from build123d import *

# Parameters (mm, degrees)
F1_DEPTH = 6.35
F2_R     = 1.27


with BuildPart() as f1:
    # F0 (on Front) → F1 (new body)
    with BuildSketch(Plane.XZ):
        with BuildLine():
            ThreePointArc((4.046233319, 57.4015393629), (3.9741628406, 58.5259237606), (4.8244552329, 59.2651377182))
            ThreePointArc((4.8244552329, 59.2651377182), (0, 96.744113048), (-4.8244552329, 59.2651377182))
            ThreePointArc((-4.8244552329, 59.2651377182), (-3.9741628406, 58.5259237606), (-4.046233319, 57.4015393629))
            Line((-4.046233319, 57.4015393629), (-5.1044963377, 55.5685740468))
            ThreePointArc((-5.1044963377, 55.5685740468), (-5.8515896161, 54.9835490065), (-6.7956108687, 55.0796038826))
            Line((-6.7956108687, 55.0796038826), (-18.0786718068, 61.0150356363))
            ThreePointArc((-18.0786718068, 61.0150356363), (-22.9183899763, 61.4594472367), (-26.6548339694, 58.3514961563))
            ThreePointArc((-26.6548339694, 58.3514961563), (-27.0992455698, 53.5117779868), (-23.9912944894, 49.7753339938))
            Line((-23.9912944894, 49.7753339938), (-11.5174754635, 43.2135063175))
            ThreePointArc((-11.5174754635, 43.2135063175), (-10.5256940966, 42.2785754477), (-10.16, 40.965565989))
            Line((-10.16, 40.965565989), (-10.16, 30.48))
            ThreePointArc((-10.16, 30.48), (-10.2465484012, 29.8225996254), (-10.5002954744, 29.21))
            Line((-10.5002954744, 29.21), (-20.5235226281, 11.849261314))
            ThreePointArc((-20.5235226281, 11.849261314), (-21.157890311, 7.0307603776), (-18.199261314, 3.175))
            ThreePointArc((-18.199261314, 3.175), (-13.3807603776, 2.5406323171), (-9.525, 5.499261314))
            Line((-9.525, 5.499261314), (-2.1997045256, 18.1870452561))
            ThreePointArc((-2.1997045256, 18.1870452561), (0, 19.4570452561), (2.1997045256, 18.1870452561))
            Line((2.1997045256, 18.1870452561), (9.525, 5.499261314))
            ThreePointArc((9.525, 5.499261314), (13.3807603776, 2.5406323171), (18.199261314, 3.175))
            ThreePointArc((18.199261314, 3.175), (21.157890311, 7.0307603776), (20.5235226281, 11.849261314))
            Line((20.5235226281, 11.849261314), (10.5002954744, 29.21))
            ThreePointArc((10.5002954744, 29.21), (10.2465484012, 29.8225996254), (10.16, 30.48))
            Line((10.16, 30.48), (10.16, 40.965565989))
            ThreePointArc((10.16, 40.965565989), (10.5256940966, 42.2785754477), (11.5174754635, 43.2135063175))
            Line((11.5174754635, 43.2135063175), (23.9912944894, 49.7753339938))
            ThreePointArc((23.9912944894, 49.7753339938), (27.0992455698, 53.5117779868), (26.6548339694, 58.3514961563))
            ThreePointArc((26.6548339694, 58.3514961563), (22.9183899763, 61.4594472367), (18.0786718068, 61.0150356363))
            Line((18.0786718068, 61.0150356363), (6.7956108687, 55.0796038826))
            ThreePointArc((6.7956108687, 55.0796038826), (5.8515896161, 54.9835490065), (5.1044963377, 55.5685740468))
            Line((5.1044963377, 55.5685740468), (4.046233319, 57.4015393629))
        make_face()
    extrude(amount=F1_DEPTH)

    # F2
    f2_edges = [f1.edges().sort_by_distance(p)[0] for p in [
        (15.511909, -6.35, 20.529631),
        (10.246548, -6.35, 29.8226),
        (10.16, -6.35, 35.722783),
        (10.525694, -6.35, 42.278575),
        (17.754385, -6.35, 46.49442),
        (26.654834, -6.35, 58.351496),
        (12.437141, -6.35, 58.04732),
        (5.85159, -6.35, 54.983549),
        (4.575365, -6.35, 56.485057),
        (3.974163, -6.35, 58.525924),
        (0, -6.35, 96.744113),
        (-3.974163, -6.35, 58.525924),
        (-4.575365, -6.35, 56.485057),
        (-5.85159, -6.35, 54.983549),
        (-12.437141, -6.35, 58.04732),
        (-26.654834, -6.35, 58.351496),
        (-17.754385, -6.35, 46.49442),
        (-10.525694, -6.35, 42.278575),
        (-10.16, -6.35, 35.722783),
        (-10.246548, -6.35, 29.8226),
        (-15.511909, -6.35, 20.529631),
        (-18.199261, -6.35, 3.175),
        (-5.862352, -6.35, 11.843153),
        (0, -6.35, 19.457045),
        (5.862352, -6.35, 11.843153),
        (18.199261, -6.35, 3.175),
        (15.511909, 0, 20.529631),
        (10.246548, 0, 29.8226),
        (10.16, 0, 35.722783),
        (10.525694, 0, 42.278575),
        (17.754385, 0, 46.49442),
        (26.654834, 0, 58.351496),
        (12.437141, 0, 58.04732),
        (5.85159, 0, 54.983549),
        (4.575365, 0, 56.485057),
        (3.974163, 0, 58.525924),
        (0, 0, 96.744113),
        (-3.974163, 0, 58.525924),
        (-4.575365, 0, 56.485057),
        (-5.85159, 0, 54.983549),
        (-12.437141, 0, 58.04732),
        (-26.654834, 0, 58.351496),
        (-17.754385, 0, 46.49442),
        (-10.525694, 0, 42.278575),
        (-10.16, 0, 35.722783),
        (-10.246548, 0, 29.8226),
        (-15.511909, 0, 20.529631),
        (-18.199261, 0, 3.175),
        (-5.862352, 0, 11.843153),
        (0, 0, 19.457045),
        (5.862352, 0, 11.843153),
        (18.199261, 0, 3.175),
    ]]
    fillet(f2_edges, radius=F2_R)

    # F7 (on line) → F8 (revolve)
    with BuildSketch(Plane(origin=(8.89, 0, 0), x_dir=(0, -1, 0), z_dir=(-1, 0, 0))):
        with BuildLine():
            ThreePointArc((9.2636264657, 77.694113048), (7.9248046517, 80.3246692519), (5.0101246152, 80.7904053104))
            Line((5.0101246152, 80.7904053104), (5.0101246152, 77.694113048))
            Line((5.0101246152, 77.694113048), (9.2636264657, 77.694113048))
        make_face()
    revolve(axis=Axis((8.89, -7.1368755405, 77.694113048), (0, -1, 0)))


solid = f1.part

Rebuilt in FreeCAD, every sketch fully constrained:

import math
import FreeCAD as App
import Part
import Sketcher

V = App.Vector
Q = App.Units.Quantity


def edges_at(feature, points):
    """Names of the edges that pass closest to the given points."""
    edges = feature.Shape.Edges
    near = lambda p: min(range(len(edges)), key=lambda i: edges[i].distToShape(Part.Vertex(*p))[0])
    return sorted({f"Edge{near(p) + 1}" for p in points})

doc = App.newDocument("Part")
body = doc.addObject("PartDesign::Body", "Body")

# Sketch on XZ plane
sketch1 = body.newObject("Sketcher::SketchObject", "Sketch")
sketch1.AttachmentSupport = (doc.getObject("XZ_Plane"), [""])
sketch1.MapMode = "FlatFace"
sketch1.addGeometry([
    Part.ArcOfCircle(Part.Circle(V(5.146086, 58.036539, 0), V(0, 0, 1), 1.27), math.radians(104.670047), math.radians(210)),  # 0
    Part.ArcOfCircle(Part.Circle(V(0, 77.694113, 0), V(0, 0, 1), 19.05), math.radians(-75.329953), math.radians(255.329953)),  # 1
    Part.ArcOfCircle(Part.Circle(V(-5.146086, 58.036539, 0), V(0, 0, 1), 1.27), math.radians(-30), math.radians(75.329953)),  # 2
    Part.LineSegment(V(-4.046233, 57.401539, 0), V(-5.104496, 55.568574, 0)),  # 3
    Part.ArcOfCircle(Part.Circle(V(-6.204349, 56.203574, 0), V(0, 0, 1), 1.27), math.radians(-117.746525), math.radians(-30)),  # 4
    Part.LineSegment(V(-6.795611, 55.079604, 0), V(-18.078672, 61.015036, 0)),  # 5
    Part.ArcOfCircle(Part.Circle(V(-21.034983, 55.395185, 0), V(0, 0, 1), 6.35), math.radians(62.253475), math.radians(152.253475)),  # 6
    Part.ArcOfCircle(Part.Circle(V(-21.034983, 55.395185, 0), V(0, 0, 1), 6.35), math.radians(152.253475), math.radians(242.253475)),  # 7
    Part.LineSegment(V(-23.991294, 49.775334, 0), V(-11.517475, 43.213506, 0)),  # 8
    Part.ArcOfCircle(Part.Circle(V(-12.7, 40.965566, 0), V(0, 0, 1), 2.54), math.radians(0), math.radians(62.253475)),  # 9
    Part.LineSegment(V(-10.16, 40.965566, 0), V(-10.16, 30.48, 0)),  # 10
    Part.ArcOfCircle(Part.Circle(V(-12.7, 30.48, 0), V(0, 0, 1), 2.54), math.radians(-30), math.radians(0)),  # 11
    Part.LineSegment(V(-10.500295, 29.21, 0), V(-20.523523, 11.849261, 0)),  # 12
    Part.ArcOfCircle(Part.Circle(V(-15.024261, 8.674261, 0), V(0, 0, 1), 6.35), math.radians(150), math.radians(240)),  # 13
    Part.ArcOfCircle(Part.Circle(V(-15.024261, 8.674261, 0), V(0, 0, 1), 6.35), math.radians(-120), math.radians(-30)),  # 14
    Part.LineSegment(V(-9.525, 5.499261, 0), V(-2.199705, 18.187045, 0)),  # 15
    Part.ArcOfCircle(Part.Circle(V(0, 16.917045, 0), V(0, 0, 1), 2.54), math.radians(30), math.radians(150)),  # 16
    Part.LineSegment(V(2.199705, 18.187045, 0), V(9.525, 5.499261, 0)),  # 17
    Part.ArcOfCircle(Part.Circle(V(15.024261, 8.674261, 0), V(0, 0, 1), 6.35), math.radians(-150), math.radians(-60)),  # 18
    Part.ArcOfCircle(Part.Circle(V(15.024261, 8.674261, 0), V(0, 0, 1), 6.35), math.radians(-60), math.radians(30)),  # 19
    Part.LineSegment(V(20.523523, 11.849261, 0), V(10.500295, 29.21, 0)),  # 20
    Part.ArcOfCircle(Part.Circle(V(12.7, 30.48, 0), V(0, 0, 1), 2.54), math.radians(180), math.radians(210)),  # 21
    Part.LineSegment(V(10.16, 30.48, 0), V(10.16, 40.965566, 0)),  # 22
    Part.ArcOfCircle(Part.Circle(V(12.7, 40.965566, 0), V(0, 0, 1), 2.54), math.radians(117.746525), math.radians(180)),  # 23
    Part.LineSegment(V(11.517475, 43.213506, 0), V(23.991294, 49.775334, 0)),  # 24
    Part.ArcOfCircle(Part.Circle(V(21.034983, 55.395185, 0), V(0, 0, 1), 6.35), math.radians(-62.253475), math.radians(27.746525)),  # 25
    Part.ArcOfCircle(Part.Circle(V(21.034983, 55.395185, 0), V(0, 0, 1), 6.35), math.radians(27.746525), math.radians(117.746525)),  # 26
    Part.LineSegment(V(18.078672, 61.015036, 0), V(6.795611, 55.079604, 0)),  # 27
    Part.ArcOfCircle(Part.Circle(V(6.204349, 56.203574, 0), V(0, 0, 1), 1.27), math.radians(-150), math.radians(-62.253475)),  # 28
    Part.LineSegment(V(5.104496, 55.568574, 0), V(4.046233, 57.401539, 0)),  # 29
], False)
sketch1.addConstraint([
    Sketcher.Constraint("Coincident", 0, 1, 1, 1),
    Sketcher.Constraint("Coincident", 1, 2, 2, 2),
    Sketcher.Constraint("Coincident", 2, 1, 3, 1),
    Sketcher.Constraint("Coincident", 3, 2, 4, 2),
    Sketcher.Constraint("Coincident", 4, 1, 5, 1),
    Sketcher.Constraint("Coincident", 5, 2, 6, 1),
    Sketcher.Constraint("Coincident", 6, 2, 7, 1),
    Sketcher.Constraint("Coincident", 7, 2, 8, 1),
    Sketcher.Constraint("Coincident", 8, 2, 9, 2),
    Sketcher.Constraint("Coincident", 9, 1, 10, 1),
    Sketcher.Constraint("Coincident", 10, 2, 11, 2),
    Sketcher.Constraint("Coincident", 11, 1, 12, 1),
    Sketcher.Constraint("Coincident", 12, 2, 13, 1),
    Sketcher.Constraint("Coincident", 13, 2, 14, 1),
    Sketcher.Constraint("Coincident", 14, 2, 15, 1),
    Sketcher.Constraint("Coincident", 15, 2, 16, 2),
    Sketcher.Constraint("Coincident", 16, 1, 17, 1),
    Sketcher.Constraint("Coincident", 17, 2, 18, 1),
    Sketcher.Constraint("Coincident", 18, 2, 19, 1),
    Sketcher.Constraint("Coincident", 19, 2, 20, 1),
    Sketcher.Constraint("Coincident", 20, 2, 21, 2),
    Sketcher.Constraint("Coincident", 21, 1, 22, 1),
    Sketcher.Constraint("Coincident", 22, 2, 23, 2),
    Sketcher.Constraint("Coincident", 23, 1, 24, 1),
    Sketcher.Constraint("Coincident", 24, 2, 25, 1),
    Sketcher.Constraint("Coincident", 25, 2, 26, 1),
    Sketcher.Constraint("Coincident", 26, 2, 27, 1),
    Sketcher.Constraint("Coincident", 27, 2, 28, 2),
    Sketcher.Constraint("Coincident", 28, 1, 29, 1),
    Sketcher.Constraint("Coincident", 29, 2, 0, 2),
    Sketcher.Constraint("Vertical", 10),
    Sketcher.Constraint("Vertical", 22),
    Sketcher.Constraint("Coincident", 7, 3, 6, 3),
    Sketcher.Constraint("Coincident", 14, 3, 13, 3),
    Sketcher.Constraint("Coincident", 19, 3, 18, 3),
    Sketcher.Constraint("Coincident", 26, 3, 25, 3),
    Sketcher.Constraint("PointOnObject", 1, 3, -2),
    Sketcher.Constraint("PointOnObject", 16, 3, -2),
    Sketcher.Constraint("Radius", 9, Q("0.1 in")),
    Sketcher.Constraint("Radius", 11, Q("0.1 in")),
    Sketcher.Constraint("Radius", 16, Q("0.1 in")),
    Sketcher.Constraint("Radius", 21, Q("0.1 in")),
    Sketcher.Constraint("Radius", 23, Q("0.1 in")),
    Sketcher.Constraint("Radius", 0, Q("0.05 in")),
    Sketcher.Constraint("Radius", 1, Q("0.75 in")),
    Sketcher.Constraint("Radius", 2, Q("0.05 in")),
    Sketcher.Constraint("Radius", 4, Q("0.05 in")),
    Sketcher.Constraint("Radius", 6, Q("0.25 in")),
    Sketcher.Constraint("Radius", 13, Q("0.25 in")),
    Sketcher.Constraint("Radius", 18, Q("0.25 in")),
    Sketcher.Constraint("Radius", 25, Q("0.25 in")),
    Sketcher.Constraint("Radius", 28, Q("0.05 in")),
    Sketcher.Constraint("DistanceX", 11, 3, 21, 3, Q("1 in")),
    Sketcher.Constraint("DistanceX", 9, 3, -1, 1, Q("0.5 in")),
    Sketcher.Constraint("DistanceY", -1, 1, 11, 3, Q("1.2 in")),
    Sketcher.Constraint("DistanceY", -1, 1, 21, 3, Q("1.2 in")),
    Sketcher.Constraint("DistanceY", -1, 1, 10, 2, Q("1.2 in")),
    Sketcher.Constraint("DistanceY", -1, 1, 21, 1, Q("1.2 in")),
    Sketcher.Constraint("DistanceX", 15, 2, 20, 2, Q("0.5 in")),
    Sketcher.Constraint("DistanceY", -1, 1, 11, 1, Q("1.15 in")),
    Sketcher.Constraint("DistanceY", -1, 1, 20, 2, Q("1.15 in")),
    Sketcher.Constraint("DistanceY", 14, 2, 12, 2, Q("0.25 in")),
    Sketcher.Constraint("DistanceY", 16, 3, 16, 1, Q("0.05 in")),
    Sketcher.Constraint("DistanceY", 17, 2, 19, 2, Q("0.25 in")),
    Sketcher.Constraint("DistanceY", -1, 1, 13, 2, Q("0.125 in")),
    Sketcher.Constraint("DistanceX", 14, 2, -1, 1, Q("0.375 in")),
    Sketcher.Constraint("DistanceX", -1, 1, 17, 2, Q("0.375 in")),
    Sketcher.Constraint("DistanceY", -1, 1, 18, 2, Q("0.125 in")),
    Sketcher.Constraint("DistanceY", 2, 1, 2, 3, Q("0.025 in")),
    Sketcher.Constraint("DistanceY", 2, 1, 0, 3, Q("0.025 in")),
    Sketcher.Constraint("DistanceY", 3, 2, 4, 3, Q("0.025 in")),
    Sketcher.Constraint("DistanceY", 13, 3, 12, 2, Q("0.125 in")),
    Sketcher.Constraint("DistanceX", 13, 2, 13, 3, Q("0.125 in")),
    Sketcher.Constraint("DistanceY", 17, 2, 18, 3, Q("0.125 in")),
    Sketcher.Constraint("DistanceX", 18, 3, 18, 2, Q("0.125 in")),
    Sketcher.Constraint("DistanceY", 28, 1, 28, 3, Q("0.025 in")),
    Sketcher.Constraint("DistanceY", 29, 2, 0, 3, Q("0.025 in")),
    Sketcher.Constraint("Distance", 8, Q("0.5548999 in")),
    Sketcher.Constraint("Distance", 24, Q("0.5548999 in")),
    Sketcher.Constraint("DistanceX", 8, 2, 4, 1, Q("0.1859002 in")),
    Sketcher.Constraint("DistanceY", 0, 3, 0, 1, Q("1.228598 mm")),
    Sketcher.Constraint("DistanceY", 2, 3, 1, 2, Q("1.228598 mm")),
    Sketcher.Constraint("DistanceY", 7, 2, 5, 2, Q("11.239702 mm")),
    Sketcher.Constraint("DistanceY", 24, 2, 26, 2, Q("11.239702 mm")),
    Sketcher.Constraint("Distance", 15, Q("14.650591 mm")),
    Sketcher.Constraint("DistanceY", 10, 2, 10, 1, Q("10.485566 mm")),
    Sketcher.Constraint("DistanceY", 22, 1, 22, 2, Q("10.485566 mm")),
    Sketcher.Constraint("DistanceY", -1, 1, 0, 3, Q("58.036539 mm")),
    Sketcher.Constraint("DistanceX", 4, 3, -1, 1, Q("6.204349 mm")),
    Sketcher.Constraint("DistanceX", -1, 1, 28, 3, Q("6.204349 mm")),
    Sketcher.Constraint("DistanceX", 4, 1, -1, 1, Q("6.795611 mm")),
    Sketcher.Constraint("DistanceX", 5, 2, -1, 1, Q("18.078672 mm")),
    Sketcher.Constraint("DistanceX", -1, 1, 26, 2, Q("18.078672 mm")),
    Sketcher.Constraint("DistanceX", -1, 1, 27, 2, Q("6.795611 mm")),
    Sketcher.Constraint("DistanceX", 2, 3, 0, 3, Q("10.292171 mm")),
    Sketcher.Constraint("DistanceY", 4, 3, 1, 3, Q("21.490539 mm")),
    Sketcher.Constraint("DistanceY", 6, 3, 4, 3, Q("0.808389 mm")),
    Sketcher.Constraint("DistanceX", 6, 3, 0, 3, Q("26.181069 mm")),
    Sketcher.Constraint("DistanceY", 23, 3, 4, 3, Q("15.238008 mm")),
    Sketcher.Constraint("DistanceY", 23, 3, 25, 3, Q("14.429619 mm")),
    Sketcher.Constraint("DistanceX", 2, 3, 25, 3, Q("26.181069 mm")),
    Sketcher.Constraint("DistanceY", 25, 3, 28, 3, Q("0.808389 mm")),
    Sketcher.Constraint("DistanceX", 6, 2, 6, 3, Q("5.619851 mm")),
    Sketcher.Constraint("DistanceX", 25, 3, 25, 2, Q("5.619851 mm")),
])
pad1 = body.newObject("PartDesign::Pad", "Pad")
pad1.Profile = sketch1
pad1.Length = Q("0.25 in")
doc.recompute()

fillet = body.newObject("PartDesign::Fillet", "Fillet")
fillet.Base = (pad1, edges_at(pad1, [
    (15.512, -6.35, 20.53),
    (10.247, -6.35, 29.823),
    (10.16, -6.35, 35.723),
    (10.526, -6.35, 42.279),
    (17.754, -6.35, 46.494),
    (27.099, -6.35, 53.512),
    (12.437, -6.35, 58.047),
    (5.852, -6.35, 54.984),
    (4.575, -6.35, 56.485),
    (3.974, -6.35, 58.526),
    (0, -6.35, 96.744),
    (-3.974, -6.35, 58.526),
    (-4.575, -6.35, 56.485),
    (-5.852, -6.35, 54.984),
    (-12.437, -6.35, 58.047),
    (-27.099, -6.35, 53.512),
    (-17.754, -6.35, 46.494),
    (-10.526, -6.35, 42.279),
    (-10.16, -6.35, 35.723),
    (-10.247, -6.35, 29.823),
    (-15.512, -6.35, 20.53),
    (-13.381, -6.35, 2.541),
    (-5.862, -6.35, 11.843),
    (0, -6.35, 19.457),
    (5.862, -6.35, 11.843),
    (13.381, -6.35, 2.541),
    (15.512, 0, 20.53),
    (10.247, 0, 29.823),
    (10.16, 0, 35.723),
    (10.526, 0, 42.279),
    (17.754, 0, 46.494),
    (27.099, 0, 53.512),
    (12.437, 0, 58.047),
    (5.852, 0, 54.984),
    (4.575, 0, 56.485),
    (3.974, 0, 58.526),
    (0, 0, 96.744),
    (-3.974, 0, 58.526),
    (-4.575, 0, 56.485),
    (-5.852, 0, 54.984),
    (-12.437, 0, 58.047),
    (-27.099, 0, 53.512),
    (-17.754, 0, 46.494),
    (-10.526, 0, 42.279),
    (-10.16, 0, 35.723),
    (-10.247, 0, 29.823),
    (-15.512, 0, 20.53),
    (-13.381, 0, 2.541),
    (-5.862, 0, 11.843),
    (0, 0, 19.457),
    (5.862, 0, 11.843),
    (13.381, 0, 2.541),
]))
fillet.Radius = Q("0.05 in")

# Sketch on YZ plane
sketch2 = body.newObject("Sketcher::SketchObject", "Sketch001")
sketch2.AttachmentSupport = (doc.getObject("YZ_Plane"), [""])
sketch2.MapMode = "FlatFace"
sketch2.AttachmentOffset = App.Placement(V(0, 0, 0.35 * 25.4), App.Rotation())
sketch2.addGeometry([
    Part.ArcOfCircle(Part.Circle(V(-6.009919, 77.694113, 0), V(0, 0, 1), 3.253708), math.radians(72.104709), math.radians(180)),
    Part.LineSegment(V(-5.010125, 80.790405, 0), V(-5.010125, 77.694113, 0)),
    Part.LineSegment(V(-5.010125, 77.694113, 0), V(-9.263626, 77.694113, 0)),
], False)
sketch2.addGeometry(Part.LineSegment(V(-5.010125, 77.694113, 0), V(-9.263626, 77.694113, 0)), True)  # axis
sketch2.addConstraint([
    Sketcher.Constraint("Coincident", 0, 1, 1, 1),
    Sketcher.Constraint("Coincident", 1, 2, 2, 1),
    Sketcher.Constraint("Coincident", 2, 2, 0, 2),
    Sketcher.Constraint("Vertical", 1),
    Sketcher.Constraint("Horizontal", 2),
    Sketcher.Constraint("Horizontal", 3),
    Sketcher.Constraint("Coincident", 3, 1, 1, 2),
    Sketcher.Constraint("Horizontal", 0, 3, 1, 2),
    Sketcher.Constraint("Equal", 2, 3),
    Sketcher.Constraint("DistanceX", 2, 2, 2, 1, Q("4.253502 mm")),
    Sketcher.Constraint("Radius", 0, Q("3.253708 mm")),
    Sketcher.Constraint("DistanceX", 0, 3, -1, 1, Q("6.009919 mm")),
    Sketcher.Constraint("DistanceY", -1, 1, 0, 3, Q("77.694113 mm")),
])
revolution = body.newObject("PartDesign::Revolution", "Revolution")
revolution.Profile = sketch2
revolution.ReferenceAxis = (sketch2, ["Axis0"])
revolution.Angle = 360

doc.recompute()
